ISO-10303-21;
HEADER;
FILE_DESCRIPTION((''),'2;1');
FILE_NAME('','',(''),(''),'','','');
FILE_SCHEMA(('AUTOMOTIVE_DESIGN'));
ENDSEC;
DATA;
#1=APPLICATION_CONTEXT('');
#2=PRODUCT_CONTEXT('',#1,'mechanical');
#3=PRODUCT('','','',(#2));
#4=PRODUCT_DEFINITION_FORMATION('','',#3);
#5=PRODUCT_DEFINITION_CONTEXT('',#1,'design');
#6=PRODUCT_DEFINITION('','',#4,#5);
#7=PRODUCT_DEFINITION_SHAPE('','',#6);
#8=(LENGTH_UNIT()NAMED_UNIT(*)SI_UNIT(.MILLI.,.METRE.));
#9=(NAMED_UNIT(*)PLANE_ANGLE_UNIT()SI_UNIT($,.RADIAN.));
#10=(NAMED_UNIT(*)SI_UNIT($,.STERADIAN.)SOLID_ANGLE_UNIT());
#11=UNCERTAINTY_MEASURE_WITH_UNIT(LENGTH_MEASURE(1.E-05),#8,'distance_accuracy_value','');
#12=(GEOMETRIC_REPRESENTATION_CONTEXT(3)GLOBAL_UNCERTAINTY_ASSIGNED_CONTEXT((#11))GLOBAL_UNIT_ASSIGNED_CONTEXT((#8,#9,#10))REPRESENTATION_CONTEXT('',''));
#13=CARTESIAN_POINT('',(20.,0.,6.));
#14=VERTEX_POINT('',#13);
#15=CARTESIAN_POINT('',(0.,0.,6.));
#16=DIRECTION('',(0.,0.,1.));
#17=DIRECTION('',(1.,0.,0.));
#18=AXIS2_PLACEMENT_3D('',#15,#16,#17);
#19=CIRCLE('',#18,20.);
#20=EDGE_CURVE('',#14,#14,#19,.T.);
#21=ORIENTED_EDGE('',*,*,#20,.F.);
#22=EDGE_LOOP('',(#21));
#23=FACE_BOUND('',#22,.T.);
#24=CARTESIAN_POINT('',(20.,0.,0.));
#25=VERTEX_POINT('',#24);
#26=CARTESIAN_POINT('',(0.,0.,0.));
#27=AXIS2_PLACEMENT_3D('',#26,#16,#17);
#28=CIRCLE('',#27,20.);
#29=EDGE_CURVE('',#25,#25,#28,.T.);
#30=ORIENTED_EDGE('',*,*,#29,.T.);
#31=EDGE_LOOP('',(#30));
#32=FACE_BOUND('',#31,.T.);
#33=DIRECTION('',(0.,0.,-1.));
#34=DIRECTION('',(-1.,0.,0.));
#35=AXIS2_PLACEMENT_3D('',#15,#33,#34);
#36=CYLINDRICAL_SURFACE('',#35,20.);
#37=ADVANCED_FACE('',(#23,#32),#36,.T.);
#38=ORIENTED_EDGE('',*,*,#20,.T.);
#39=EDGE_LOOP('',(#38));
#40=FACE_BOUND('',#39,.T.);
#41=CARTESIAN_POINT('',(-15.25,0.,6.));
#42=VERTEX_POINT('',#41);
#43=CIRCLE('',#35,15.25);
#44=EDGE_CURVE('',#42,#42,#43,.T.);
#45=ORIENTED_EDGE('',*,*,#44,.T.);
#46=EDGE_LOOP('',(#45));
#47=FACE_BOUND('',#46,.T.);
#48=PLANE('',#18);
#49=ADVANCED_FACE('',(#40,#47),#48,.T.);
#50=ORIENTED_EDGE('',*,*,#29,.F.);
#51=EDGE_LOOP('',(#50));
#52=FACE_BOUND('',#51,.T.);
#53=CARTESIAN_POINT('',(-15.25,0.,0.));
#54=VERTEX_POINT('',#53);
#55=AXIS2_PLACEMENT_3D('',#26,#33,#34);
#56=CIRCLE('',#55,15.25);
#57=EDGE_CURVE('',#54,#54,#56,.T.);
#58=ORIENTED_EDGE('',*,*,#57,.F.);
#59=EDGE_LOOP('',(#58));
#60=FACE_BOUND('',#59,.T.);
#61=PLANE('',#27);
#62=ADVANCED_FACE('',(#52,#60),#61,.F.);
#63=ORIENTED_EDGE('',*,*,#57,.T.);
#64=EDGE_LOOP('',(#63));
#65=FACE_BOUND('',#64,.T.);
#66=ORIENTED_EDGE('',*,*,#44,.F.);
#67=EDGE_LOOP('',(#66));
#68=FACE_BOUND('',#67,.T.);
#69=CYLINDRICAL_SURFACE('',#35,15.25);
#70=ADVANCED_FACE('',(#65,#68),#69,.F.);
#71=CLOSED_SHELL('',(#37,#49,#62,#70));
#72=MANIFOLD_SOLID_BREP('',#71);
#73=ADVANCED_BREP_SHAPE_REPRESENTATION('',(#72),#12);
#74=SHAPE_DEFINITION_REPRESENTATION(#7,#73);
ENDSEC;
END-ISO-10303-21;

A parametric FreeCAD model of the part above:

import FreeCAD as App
import Part
import Sketcher
from FreeCAD import Vector
Q = App.Units.Quantity

doc = App.newDocument("Part")
body = doc.addObject("PartDesign::Body", "Body")

sketch1 = body.newObject("Sketcher::SketchObject", "Sketch")
sketch1.AttachmentSupport = (doc.getObject("XY_Plane"), [""])
sketch1.MapMode = "FlatFace"
sketch1.addGeometry(Part.Circle(Vector(0, 0, 0), Vector(0, 0, 1), 20), False)
sketch1.addConstraint(Sketcher.Constraint("Coincident", 0, 3, -1, 1))
sketch1.addConstraint(Sketcher.Constraint("Diameter", 0, Q("40 mm")))
pad1 = body.newObject("PartDesign::Pad", "Pad")
pad1.Profile = sketch1
pad1.Length = 6

sketch2 = body.newObject("Sketcher::SketchObject", "Sketch001")
sketch2.AttachmentSupport = (doc.getObject("XY_Plane"), [""])
sketch2.MapMode = "FlatFace"
sketch2.addGeometry(Part.Circle(Vector(0, 0, 0), Vector(0, 0, 1), 15), False)
sketch2.addConstraint(Sketcher.Constraint("Coincident", 0, 3, -1, 1))
sketch2.addConstraint(Sketcher.Constraint("Diameter", 0, Q("30.5 mm")))
pocket1 = body.newObject("PartDesign::Pocket", "Pocket")
pocket1.Profile = sketch2
pocket1.Type = "ThroughAll"
pocket1.Reversed = True

doc.recompute()
